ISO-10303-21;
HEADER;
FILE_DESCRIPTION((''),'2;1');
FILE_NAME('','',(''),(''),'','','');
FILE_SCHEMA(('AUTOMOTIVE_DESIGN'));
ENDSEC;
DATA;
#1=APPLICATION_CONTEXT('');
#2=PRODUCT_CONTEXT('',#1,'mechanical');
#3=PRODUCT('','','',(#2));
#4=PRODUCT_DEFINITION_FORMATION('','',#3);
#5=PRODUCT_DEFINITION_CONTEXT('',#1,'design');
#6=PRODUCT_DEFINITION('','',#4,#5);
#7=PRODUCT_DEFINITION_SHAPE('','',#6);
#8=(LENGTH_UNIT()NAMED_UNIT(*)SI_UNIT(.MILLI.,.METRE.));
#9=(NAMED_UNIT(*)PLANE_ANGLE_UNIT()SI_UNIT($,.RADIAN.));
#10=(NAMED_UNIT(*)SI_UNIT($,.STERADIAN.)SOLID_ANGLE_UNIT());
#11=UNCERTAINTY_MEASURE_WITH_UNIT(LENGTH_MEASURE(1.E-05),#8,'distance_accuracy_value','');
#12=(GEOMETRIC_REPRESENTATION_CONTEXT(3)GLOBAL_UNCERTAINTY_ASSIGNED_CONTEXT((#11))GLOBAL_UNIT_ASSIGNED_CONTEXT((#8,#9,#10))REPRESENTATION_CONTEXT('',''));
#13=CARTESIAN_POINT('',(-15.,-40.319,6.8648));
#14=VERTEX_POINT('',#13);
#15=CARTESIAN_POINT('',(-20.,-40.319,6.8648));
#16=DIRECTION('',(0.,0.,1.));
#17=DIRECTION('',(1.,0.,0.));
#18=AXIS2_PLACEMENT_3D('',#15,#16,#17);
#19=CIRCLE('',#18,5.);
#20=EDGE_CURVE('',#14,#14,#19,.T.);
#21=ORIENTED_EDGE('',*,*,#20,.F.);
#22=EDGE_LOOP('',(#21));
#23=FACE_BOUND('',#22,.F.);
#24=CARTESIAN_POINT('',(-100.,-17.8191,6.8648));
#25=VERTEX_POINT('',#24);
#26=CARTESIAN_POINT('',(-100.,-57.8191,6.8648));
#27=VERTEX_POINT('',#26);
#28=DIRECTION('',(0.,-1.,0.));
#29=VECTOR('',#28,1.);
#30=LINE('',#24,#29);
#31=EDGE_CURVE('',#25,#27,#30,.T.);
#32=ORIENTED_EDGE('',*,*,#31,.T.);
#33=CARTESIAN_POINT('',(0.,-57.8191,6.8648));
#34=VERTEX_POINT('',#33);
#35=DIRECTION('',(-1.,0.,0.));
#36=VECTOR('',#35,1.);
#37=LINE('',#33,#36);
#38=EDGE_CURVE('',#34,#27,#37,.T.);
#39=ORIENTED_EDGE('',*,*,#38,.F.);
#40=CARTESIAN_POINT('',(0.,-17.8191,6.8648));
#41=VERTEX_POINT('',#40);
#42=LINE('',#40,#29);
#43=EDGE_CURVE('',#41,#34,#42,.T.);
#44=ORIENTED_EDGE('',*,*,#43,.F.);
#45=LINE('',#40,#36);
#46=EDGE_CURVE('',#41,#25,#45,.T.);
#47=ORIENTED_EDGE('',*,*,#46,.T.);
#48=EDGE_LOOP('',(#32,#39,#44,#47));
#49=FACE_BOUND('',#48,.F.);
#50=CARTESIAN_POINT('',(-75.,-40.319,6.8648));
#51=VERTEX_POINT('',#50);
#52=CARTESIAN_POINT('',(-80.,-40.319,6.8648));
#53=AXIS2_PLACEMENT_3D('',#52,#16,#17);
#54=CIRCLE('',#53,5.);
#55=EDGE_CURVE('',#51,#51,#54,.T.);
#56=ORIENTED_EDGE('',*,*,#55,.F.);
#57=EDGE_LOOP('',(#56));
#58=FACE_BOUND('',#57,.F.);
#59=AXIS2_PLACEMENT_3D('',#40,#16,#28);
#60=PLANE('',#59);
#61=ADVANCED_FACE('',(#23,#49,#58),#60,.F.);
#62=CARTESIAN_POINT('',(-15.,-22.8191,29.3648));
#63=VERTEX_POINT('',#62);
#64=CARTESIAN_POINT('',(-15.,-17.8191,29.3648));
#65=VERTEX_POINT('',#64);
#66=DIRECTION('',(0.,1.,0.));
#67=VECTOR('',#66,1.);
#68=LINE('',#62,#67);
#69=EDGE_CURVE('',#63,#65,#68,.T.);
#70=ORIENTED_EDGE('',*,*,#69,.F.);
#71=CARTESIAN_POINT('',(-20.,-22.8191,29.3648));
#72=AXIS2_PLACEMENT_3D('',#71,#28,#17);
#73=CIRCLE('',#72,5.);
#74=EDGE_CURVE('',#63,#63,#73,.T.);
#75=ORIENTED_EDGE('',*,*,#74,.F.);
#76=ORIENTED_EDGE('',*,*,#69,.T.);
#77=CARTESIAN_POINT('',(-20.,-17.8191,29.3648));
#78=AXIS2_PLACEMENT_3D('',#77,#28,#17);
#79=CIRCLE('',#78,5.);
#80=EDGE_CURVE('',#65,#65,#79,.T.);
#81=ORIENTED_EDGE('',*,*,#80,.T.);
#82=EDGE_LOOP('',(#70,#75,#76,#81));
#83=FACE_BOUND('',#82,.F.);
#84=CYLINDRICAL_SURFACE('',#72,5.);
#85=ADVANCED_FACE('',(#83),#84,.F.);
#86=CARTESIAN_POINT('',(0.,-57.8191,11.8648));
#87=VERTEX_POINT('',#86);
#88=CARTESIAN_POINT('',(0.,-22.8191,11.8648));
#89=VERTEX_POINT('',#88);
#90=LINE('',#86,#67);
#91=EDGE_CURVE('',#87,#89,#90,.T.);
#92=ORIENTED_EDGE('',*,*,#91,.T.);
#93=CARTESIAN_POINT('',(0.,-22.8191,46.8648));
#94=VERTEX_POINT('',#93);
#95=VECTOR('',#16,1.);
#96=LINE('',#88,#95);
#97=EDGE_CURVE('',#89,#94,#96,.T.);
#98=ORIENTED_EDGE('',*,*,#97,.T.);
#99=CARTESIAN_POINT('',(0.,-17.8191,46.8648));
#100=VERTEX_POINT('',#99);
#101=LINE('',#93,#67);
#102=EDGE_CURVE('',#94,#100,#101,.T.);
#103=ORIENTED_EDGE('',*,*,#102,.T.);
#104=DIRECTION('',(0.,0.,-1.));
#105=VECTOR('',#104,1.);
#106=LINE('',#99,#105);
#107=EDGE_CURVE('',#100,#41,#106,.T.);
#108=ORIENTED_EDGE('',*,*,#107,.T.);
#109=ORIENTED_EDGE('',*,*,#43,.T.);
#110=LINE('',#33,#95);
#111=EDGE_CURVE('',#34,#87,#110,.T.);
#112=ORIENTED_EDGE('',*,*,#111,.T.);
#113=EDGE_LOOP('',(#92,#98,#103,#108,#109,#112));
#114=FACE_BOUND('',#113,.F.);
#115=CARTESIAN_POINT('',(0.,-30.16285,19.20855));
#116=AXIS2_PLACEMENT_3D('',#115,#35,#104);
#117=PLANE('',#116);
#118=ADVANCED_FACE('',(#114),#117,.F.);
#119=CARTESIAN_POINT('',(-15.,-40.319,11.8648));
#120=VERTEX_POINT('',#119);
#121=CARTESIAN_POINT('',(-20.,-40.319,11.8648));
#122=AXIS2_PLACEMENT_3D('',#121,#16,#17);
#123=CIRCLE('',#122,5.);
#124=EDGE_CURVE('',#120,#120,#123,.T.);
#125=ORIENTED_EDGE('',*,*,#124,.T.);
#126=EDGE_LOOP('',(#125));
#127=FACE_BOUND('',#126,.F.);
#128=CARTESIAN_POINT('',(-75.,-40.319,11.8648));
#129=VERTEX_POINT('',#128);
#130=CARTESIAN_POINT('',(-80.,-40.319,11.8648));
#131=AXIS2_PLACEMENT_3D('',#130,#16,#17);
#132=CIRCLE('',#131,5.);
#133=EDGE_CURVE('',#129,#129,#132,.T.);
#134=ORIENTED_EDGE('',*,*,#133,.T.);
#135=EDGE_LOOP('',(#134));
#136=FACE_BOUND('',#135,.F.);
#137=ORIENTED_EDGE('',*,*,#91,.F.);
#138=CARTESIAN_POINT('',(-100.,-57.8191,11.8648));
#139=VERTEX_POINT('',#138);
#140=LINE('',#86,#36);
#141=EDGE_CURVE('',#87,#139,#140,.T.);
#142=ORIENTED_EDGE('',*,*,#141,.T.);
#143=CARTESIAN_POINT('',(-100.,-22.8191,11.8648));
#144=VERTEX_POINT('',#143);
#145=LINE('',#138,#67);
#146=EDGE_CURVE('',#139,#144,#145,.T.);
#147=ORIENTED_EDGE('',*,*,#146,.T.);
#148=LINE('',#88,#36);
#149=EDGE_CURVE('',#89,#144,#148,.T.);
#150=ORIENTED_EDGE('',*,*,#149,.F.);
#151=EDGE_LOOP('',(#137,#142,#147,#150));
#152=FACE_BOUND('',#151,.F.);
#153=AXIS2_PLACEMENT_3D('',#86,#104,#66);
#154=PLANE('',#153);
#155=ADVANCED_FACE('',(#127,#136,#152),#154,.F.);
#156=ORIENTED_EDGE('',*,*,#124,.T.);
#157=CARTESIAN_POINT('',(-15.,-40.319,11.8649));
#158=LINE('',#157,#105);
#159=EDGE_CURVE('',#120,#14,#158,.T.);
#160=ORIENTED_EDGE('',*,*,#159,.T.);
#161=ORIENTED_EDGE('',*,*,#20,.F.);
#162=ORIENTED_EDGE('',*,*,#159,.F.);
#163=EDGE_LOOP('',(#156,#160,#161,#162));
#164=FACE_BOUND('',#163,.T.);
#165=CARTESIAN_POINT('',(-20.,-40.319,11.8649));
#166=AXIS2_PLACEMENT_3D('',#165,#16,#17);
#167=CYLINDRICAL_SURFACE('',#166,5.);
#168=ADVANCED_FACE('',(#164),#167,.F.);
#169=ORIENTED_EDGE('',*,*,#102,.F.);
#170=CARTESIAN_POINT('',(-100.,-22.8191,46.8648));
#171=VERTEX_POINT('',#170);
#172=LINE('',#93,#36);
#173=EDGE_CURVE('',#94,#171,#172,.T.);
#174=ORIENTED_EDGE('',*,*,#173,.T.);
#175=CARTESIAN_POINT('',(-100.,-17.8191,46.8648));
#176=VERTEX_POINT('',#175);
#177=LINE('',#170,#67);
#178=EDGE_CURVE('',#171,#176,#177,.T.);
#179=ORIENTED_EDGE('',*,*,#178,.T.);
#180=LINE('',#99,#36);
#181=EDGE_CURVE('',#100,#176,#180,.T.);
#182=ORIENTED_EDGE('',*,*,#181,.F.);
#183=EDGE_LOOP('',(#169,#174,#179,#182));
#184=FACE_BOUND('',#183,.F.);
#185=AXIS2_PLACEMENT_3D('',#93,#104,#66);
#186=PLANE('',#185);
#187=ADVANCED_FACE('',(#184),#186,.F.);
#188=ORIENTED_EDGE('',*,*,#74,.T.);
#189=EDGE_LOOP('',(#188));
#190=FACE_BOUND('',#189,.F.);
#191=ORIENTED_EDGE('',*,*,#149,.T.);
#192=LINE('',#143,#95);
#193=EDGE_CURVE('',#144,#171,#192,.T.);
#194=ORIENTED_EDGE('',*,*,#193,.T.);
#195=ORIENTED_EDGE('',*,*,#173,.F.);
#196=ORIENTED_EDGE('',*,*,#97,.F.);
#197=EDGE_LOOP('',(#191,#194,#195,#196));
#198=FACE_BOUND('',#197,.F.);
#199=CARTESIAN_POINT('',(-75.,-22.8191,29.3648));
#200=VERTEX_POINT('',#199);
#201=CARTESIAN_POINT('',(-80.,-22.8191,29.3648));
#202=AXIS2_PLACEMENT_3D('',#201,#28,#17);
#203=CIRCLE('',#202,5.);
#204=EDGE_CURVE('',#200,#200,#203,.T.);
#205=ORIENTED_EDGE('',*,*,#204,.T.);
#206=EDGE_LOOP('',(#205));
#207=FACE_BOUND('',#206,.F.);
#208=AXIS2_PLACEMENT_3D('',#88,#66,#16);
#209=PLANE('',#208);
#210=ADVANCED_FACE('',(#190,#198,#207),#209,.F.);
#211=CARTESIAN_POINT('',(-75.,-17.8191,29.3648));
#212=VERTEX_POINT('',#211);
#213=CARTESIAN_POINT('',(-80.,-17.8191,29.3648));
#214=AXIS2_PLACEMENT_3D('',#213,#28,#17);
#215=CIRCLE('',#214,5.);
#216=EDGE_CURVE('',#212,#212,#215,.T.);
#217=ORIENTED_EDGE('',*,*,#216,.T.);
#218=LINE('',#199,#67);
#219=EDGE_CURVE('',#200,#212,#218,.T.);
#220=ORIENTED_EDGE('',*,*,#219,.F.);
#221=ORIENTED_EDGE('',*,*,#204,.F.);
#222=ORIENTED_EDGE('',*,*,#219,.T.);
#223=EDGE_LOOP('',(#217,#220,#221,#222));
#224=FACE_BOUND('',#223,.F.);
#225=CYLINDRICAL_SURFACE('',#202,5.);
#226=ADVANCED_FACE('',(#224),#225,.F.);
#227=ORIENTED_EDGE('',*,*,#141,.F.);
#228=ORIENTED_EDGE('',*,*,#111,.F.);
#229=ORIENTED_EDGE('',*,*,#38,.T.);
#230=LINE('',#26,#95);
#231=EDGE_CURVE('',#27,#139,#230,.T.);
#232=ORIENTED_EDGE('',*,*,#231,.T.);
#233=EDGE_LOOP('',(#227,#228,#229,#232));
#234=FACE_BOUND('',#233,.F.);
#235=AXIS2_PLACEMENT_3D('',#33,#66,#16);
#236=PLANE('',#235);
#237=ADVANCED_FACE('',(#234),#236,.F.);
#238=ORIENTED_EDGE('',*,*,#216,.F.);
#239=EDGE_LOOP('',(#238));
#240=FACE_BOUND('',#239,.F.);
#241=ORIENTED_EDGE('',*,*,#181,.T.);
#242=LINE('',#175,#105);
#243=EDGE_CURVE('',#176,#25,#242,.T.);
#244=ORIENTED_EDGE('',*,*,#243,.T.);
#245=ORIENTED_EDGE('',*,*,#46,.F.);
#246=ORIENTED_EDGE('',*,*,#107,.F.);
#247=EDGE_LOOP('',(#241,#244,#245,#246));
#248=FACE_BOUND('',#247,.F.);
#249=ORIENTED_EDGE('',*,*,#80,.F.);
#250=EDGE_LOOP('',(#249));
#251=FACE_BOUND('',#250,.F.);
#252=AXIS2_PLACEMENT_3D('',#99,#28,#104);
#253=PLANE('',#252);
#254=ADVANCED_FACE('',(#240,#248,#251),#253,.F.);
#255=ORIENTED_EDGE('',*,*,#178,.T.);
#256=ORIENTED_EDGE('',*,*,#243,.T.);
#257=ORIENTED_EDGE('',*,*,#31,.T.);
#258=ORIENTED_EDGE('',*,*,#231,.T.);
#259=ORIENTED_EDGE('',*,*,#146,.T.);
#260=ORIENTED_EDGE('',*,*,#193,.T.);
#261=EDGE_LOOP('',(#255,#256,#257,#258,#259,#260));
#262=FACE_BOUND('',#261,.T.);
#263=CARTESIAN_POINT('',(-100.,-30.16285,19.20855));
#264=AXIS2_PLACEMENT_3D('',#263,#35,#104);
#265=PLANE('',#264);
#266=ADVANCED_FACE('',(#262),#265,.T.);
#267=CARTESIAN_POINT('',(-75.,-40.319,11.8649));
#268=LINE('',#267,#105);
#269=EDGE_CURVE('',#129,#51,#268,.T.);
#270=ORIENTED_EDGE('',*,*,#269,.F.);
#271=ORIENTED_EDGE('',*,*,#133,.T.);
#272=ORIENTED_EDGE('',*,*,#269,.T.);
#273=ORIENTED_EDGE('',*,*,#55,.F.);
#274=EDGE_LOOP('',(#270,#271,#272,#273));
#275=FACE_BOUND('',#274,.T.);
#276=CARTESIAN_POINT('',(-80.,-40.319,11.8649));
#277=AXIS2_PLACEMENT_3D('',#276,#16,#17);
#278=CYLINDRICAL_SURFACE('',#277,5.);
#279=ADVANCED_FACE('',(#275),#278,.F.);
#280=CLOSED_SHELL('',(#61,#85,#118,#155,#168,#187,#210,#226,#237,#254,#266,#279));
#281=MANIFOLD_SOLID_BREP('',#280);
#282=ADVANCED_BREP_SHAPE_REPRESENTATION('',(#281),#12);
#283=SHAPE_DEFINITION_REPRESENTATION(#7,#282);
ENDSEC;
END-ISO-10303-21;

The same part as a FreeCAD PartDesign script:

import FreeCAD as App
import Part
import Sketcher

V = App.Vector


def add_polygon(sketch, points):
    """Adds a closed chain of lines whose ends are joined by coincident constraints."""
    first, n = sketch.GeometryCount, len(points)
    for a, b in zip(points, points[1:] + points[:1]):
        sketch.addGeometry(Part.LineSegment(App.Vector(*a, 0), App.Vector(*b, 0)), False)
    for i in range(n):
        sketch.addConstraint(Sketcher.Constraint("Coincident", first + i, 2, first + (i + 1) % n, 1))

doc = App.newDocument("Part")
body = doc.addObject("PartDesign::Body", "Body")

# Sketch on YZ plane
sketch1 = doc.addObject("Sketcher::SketchObject", "Sketch")
body.addObject(sketch1)
sketch1.AttachmentSupport = (doc.YZ_Plane, [""])
sketch1.MapMode = "FlatFace"
add_polygon(sketch1, [(-18, 7), (-18, 47), (-23, 47), (-23, 12), (-58, 12), (-58, 7)])  # lines 0-5
sketch1.addConstraint([
    Sketcher.Constraint("Vertical", 0),
    Sketcher.Constraint("Horizontal", 1),
    Sketcher.Constraint("Vertical", 2),
    Sketcher.Constraint("Horizontal", 3),
    Sketcher.Constraint("Vertical", 4),
    Sketcher.Constraint("Horizontal", 5),
    Sketcher.Constraint("Equal", 5, 0),
    Sketcher.Constraint("Equal", 3, 2),
    Sketcher.Constraint("DistanceX", 1, 2, 1, 1, 5.0),
    Sketcher.Constraint("DistanceX", 3, 2, 3, 1, 35.0),
    Sketcher.Constraint("DistanceX", 0, 2, -1, 1, 17.819),
    Sketcher.Constraint("DistanceY", -1, 1, 0, 2, 46.8648),
])
pad1 = doc.addObject("PartDesign::Pad", "Pad")
body.addObject(pad1)
pad1.Profile = sketch1
pad1.Length = 100
pad1.Reversed = True

# Sketch on XZ plane
sketch2 = doc.addObject("Sketcher::SketchObject", "Sketch001")
body.addObject(sketch2)
sketch2.AttachmentSupport = (doc.XZ_Plane, [""])
sketch2.MapMode = "FlatFace"
sketch2.AttachmentOffset = App.Placement(V(0, 0, 22.8191), App.Rotation())
sketch2.addGeometry([
    Part.Circle(V(-20, 29, 0), V(0, 0, 1), 5),
    Part.Circle(V(-80, 29, 0), V(0, 0, 1), 5),
], False)
sketch2.addConstraint([
    Sketcher.Constraint("Equal", 0, 1),
    Sketcher.Constraint("Horizontal", 0, 3, 1, 3),
    Sketcher.Constraint("Diameter", 0, 10.0),
    Sketcher.Constraint("DistanceX", 0, 3, -1, 1, 20.0),
    Sketcher.Constraint("DistanceX", 1, 3, -1, 1, 80.0),
    Sketcher.Constraint("DistanceY", -1, 1, 0, 3, 29.3648),
])
pocket1 = doc.addObject("PartDesign::Pocket", "Pocket")
body.addObject(pocket1)
pocket1.Profile = sketch2
pocket1.Type = "ThroughAll"
doc.recompute()

datumplane = doc.addObject("PartDesign::Plane", "DatumPlane")
body.addObject(datumplane)
datumplane.Placement = App.Placement(V(0, -5.4771, -5.4771), App.Rotation(V(0, -0.707106781, 0.707106781), V(-1, 0, 0), V(0, -0.707106781, -0.707106781), "ZXY"))
mirrored = doc.addObject("PartDesign::Mirrored", "Mirrored")
body.addObject(mirrored)
mirrored.Originals = [pocket1]
mirrored.MirrorPlane = (datumplane, [""])
body.Tip = mirrored

doc.recompute()
